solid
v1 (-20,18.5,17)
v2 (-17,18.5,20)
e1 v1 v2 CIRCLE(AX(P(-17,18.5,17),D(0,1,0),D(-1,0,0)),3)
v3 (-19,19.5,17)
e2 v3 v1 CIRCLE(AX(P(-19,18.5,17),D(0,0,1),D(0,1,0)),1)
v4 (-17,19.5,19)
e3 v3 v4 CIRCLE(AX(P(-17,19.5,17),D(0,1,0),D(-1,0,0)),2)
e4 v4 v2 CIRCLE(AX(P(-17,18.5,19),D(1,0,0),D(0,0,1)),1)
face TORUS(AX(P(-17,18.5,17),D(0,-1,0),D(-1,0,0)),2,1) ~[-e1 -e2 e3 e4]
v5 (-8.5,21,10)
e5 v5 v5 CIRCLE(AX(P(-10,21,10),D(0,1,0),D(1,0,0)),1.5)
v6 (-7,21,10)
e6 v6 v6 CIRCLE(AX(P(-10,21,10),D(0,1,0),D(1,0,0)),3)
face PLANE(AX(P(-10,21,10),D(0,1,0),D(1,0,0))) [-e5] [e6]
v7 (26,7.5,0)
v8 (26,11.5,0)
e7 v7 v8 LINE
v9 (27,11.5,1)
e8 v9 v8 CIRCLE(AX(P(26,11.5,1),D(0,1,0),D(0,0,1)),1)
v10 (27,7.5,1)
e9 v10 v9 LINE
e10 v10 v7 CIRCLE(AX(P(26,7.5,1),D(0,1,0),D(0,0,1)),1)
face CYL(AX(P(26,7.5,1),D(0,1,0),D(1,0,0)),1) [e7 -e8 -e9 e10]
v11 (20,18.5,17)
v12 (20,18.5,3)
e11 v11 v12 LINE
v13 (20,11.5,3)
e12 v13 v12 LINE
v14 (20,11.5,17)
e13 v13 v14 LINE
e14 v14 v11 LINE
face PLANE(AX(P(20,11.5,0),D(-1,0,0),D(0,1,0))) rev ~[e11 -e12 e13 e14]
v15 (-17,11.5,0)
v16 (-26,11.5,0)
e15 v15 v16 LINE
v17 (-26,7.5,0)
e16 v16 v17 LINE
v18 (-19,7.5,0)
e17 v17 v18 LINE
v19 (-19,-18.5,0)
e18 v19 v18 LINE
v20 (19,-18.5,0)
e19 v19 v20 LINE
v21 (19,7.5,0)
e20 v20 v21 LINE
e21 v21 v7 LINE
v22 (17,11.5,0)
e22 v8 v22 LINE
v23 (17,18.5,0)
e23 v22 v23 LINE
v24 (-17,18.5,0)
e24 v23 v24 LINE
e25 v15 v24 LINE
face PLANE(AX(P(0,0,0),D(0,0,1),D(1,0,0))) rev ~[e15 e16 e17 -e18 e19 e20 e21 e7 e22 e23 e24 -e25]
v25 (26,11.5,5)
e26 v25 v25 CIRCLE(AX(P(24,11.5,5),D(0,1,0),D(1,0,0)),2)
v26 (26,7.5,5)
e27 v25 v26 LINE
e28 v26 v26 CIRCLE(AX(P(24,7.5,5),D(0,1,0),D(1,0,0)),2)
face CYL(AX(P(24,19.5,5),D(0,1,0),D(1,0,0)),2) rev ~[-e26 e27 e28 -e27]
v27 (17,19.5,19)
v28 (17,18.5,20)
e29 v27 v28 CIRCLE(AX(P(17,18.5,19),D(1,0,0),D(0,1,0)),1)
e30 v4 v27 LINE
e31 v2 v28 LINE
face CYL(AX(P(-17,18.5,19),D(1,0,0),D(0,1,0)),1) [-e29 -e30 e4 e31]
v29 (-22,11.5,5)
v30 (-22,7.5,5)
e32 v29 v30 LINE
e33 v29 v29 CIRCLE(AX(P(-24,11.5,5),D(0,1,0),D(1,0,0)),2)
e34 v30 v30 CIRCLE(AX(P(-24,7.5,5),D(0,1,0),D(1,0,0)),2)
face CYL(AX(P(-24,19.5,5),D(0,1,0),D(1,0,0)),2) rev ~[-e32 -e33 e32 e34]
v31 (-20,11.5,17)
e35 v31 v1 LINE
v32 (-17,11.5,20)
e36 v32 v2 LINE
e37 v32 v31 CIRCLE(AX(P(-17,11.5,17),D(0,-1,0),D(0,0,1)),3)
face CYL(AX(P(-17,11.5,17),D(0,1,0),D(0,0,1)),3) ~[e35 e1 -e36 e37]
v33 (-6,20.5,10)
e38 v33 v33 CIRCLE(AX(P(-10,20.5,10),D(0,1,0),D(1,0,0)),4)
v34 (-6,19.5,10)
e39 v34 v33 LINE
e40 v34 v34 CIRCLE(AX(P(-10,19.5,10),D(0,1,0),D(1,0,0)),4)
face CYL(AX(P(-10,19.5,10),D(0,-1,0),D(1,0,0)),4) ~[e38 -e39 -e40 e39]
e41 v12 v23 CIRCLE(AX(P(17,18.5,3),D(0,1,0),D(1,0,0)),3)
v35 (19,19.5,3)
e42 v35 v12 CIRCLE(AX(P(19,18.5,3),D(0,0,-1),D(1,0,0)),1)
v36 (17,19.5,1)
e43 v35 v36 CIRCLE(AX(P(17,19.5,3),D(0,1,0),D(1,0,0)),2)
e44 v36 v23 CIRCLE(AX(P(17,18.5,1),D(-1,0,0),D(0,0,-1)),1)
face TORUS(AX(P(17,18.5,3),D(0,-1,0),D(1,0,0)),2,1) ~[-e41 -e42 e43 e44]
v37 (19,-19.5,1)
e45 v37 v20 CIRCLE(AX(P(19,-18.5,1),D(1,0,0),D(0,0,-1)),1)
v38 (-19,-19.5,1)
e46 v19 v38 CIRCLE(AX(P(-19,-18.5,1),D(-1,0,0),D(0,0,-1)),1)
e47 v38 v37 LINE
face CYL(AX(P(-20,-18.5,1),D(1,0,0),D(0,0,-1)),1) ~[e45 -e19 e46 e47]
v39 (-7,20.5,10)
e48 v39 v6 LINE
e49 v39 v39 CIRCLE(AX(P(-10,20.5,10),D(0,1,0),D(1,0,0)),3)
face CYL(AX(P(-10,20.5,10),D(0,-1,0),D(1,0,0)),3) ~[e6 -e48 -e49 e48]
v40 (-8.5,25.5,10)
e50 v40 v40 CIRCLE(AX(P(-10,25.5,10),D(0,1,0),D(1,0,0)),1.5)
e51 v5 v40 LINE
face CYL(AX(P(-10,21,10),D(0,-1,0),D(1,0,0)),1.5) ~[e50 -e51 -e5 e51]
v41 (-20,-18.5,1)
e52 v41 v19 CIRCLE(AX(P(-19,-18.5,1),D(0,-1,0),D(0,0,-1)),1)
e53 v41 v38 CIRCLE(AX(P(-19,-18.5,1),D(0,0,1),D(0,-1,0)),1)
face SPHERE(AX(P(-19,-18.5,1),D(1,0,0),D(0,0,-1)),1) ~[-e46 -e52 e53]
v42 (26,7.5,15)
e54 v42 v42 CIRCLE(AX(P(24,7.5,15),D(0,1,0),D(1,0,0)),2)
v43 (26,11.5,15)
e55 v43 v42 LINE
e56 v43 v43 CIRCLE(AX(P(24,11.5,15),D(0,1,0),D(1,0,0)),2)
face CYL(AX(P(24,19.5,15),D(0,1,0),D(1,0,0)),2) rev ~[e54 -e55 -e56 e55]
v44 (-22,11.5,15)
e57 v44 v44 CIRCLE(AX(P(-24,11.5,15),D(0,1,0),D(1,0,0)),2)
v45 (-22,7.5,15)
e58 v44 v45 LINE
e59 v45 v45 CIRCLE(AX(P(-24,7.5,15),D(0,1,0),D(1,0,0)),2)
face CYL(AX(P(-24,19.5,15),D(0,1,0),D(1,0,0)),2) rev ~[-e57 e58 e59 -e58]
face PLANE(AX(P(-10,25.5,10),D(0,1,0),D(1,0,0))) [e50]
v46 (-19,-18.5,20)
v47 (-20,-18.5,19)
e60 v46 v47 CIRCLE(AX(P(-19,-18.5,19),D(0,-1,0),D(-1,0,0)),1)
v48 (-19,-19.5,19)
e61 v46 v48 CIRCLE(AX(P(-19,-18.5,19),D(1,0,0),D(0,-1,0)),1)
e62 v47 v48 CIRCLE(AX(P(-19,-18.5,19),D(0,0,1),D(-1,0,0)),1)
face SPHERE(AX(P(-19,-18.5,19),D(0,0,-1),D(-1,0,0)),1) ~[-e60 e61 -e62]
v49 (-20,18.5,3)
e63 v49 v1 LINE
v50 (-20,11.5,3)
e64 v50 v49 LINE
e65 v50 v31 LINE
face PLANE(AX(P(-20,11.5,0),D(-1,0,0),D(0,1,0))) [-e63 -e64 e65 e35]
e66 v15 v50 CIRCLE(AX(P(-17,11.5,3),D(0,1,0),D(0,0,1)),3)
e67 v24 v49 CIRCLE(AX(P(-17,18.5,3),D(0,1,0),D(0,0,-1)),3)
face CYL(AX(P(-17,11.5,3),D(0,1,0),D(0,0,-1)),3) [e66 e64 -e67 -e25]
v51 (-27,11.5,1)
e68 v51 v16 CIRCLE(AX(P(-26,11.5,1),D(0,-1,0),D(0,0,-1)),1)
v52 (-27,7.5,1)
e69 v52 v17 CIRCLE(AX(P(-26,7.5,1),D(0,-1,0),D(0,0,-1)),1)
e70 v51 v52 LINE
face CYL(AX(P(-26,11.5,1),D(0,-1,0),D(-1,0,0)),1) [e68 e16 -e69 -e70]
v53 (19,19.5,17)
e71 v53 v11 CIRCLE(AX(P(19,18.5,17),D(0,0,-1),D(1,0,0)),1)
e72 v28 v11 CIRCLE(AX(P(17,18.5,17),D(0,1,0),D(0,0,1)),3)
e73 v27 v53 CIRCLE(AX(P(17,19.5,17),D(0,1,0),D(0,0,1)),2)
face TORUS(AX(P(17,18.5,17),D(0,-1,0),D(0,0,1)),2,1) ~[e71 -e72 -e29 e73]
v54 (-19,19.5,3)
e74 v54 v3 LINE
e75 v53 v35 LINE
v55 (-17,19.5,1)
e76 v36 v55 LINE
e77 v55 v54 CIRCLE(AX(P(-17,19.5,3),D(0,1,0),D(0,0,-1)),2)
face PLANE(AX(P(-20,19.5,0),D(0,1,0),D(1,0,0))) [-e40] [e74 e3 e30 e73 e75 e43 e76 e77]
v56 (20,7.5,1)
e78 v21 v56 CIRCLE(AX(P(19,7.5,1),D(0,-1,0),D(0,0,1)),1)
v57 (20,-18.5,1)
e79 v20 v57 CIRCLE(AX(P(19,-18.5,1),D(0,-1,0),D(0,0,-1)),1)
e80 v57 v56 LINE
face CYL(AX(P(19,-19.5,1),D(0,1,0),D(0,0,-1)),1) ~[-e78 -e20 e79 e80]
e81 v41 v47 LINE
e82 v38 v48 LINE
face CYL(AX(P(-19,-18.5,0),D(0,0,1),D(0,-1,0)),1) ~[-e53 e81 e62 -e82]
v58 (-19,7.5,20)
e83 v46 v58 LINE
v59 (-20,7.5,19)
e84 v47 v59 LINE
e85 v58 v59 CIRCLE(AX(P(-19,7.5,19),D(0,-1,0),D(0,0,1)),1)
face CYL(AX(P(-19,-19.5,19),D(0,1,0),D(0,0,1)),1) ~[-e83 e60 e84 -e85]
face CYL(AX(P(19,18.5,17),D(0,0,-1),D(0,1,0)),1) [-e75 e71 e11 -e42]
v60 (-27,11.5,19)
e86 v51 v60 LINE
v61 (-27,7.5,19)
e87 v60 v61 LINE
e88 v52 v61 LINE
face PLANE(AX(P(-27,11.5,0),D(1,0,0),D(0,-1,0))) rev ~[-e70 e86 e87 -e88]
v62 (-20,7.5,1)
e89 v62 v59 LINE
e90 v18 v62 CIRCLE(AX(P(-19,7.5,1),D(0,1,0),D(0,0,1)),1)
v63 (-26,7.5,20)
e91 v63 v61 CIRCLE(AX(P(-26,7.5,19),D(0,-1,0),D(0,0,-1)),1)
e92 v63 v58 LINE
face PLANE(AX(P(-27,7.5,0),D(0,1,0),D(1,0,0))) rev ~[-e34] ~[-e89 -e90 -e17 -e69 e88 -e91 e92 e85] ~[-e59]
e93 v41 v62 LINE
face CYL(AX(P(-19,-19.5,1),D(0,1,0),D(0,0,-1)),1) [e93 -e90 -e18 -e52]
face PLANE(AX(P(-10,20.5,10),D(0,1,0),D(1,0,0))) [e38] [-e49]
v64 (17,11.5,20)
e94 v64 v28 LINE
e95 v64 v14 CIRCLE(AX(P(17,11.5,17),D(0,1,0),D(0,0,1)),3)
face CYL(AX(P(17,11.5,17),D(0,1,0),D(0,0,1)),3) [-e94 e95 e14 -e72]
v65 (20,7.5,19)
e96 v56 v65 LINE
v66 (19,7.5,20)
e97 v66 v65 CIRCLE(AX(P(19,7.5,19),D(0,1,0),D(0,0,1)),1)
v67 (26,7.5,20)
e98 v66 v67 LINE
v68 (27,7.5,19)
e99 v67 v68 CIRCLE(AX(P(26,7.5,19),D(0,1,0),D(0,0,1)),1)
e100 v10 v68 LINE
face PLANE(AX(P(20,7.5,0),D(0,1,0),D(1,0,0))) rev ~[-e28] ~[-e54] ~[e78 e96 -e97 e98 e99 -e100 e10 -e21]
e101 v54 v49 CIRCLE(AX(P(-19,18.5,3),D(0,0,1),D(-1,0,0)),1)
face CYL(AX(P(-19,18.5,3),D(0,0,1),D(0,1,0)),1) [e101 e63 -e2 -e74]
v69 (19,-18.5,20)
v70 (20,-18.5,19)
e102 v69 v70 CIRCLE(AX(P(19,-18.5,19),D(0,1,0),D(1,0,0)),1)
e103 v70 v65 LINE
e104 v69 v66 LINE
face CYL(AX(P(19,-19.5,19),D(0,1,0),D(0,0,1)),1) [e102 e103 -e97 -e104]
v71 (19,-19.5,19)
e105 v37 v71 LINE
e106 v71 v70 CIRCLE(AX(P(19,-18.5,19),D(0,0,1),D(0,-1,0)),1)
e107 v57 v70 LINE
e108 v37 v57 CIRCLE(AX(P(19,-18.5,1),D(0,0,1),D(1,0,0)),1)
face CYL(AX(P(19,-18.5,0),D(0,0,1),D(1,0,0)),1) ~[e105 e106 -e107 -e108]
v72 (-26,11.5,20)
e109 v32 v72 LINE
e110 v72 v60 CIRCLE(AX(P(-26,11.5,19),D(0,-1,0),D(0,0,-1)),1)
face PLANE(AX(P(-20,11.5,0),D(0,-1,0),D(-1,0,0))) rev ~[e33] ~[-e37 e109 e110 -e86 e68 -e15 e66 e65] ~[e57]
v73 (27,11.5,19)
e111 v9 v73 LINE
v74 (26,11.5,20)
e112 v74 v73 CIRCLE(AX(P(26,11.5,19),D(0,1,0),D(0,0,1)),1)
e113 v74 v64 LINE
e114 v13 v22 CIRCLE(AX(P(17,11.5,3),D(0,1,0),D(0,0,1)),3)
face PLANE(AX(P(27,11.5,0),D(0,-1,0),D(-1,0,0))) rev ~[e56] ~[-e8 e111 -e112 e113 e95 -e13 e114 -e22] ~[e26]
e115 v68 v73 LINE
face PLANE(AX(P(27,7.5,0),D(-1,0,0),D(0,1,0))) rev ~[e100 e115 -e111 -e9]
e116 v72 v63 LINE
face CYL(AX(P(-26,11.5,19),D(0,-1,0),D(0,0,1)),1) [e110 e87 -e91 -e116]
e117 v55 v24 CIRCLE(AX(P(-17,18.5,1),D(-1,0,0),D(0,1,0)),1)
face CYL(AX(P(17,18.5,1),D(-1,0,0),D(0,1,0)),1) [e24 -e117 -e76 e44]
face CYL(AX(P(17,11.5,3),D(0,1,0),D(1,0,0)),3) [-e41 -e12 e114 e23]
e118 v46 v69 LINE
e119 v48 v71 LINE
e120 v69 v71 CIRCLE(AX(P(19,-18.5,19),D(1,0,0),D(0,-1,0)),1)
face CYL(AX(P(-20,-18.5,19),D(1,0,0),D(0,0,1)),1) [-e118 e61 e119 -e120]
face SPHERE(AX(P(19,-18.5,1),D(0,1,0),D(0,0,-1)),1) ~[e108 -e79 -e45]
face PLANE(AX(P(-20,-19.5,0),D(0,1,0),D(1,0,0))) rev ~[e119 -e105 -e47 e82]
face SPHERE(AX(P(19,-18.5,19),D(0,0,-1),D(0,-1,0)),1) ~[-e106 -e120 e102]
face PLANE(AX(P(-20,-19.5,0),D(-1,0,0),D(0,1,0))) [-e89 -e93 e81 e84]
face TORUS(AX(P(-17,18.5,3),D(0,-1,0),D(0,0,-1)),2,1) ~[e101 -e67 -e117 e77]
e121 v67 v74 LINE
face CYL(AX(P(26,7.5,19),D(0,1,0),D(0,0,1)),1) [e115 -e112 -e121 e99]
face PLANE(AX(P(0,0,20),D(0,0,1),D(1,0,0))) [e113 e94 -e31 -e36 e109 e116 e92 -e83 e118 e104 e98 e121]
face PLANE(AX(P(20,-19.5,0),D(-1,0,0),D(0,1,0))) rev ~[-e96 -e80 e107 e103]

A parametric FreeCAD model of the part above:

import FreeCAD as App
import Part
import Sketcher

V = App.Vector


def edges_at(feature, points):
    """Names of the edges that pass closest to the given points."""
    edges = feature.Shape.Edges
    near = lambda p: min(range(len(edges)), key=lambda i: edges[i].distToShape(Part.Vertex(*p))[0])
    return sorted({f"Edge{near(p) + 1}" for p in points})

doc = App.newDocument("Part")
body = doc.addObject("PartDesign::Body", "Body")

# Sketch on XY plane
sketch1 = body.newObject("Sketcher::SketchObject", "Sketch")
sketch1.AttachmentSupport = (doc.getObject("XY_Plane"), [""])
sketch1.MapMode = "FlatFace"
sketch1.addGeometry(Part.LineSegment(V(-20, 7.5, 0), V(-20, -19.5, 0)), False)
sketch1.addGeometry(Part.LineSegment(V(-20, -19.5, 0), V(20, -19.5, 0)), False)
sketch1.addGeometry(Part.LineSegment(V(20, -19.5, 0), V(20, 7.5, 0)), False)
sketch1.addGeometry(Part.LineSegment(V(20, 7.5, 0), V(27, 7.5, 0)), False)
sketch1.addGeometry(Part.LineSegment(V(27, 7.5, 0), V(27, 11.5, 0)), False)
sketch1.addGeometry(Part.LineSegment(V(27, 11.5, 0), V(20, 11.5, 0)), False)
sketch1.addGeometry(Part.LineSegment(V(20, 11.5, 0), V(20, 19.5, 0)), False)
sketch1.addGeometry(Part.LineSegment(V(20, 19.5, 0), V(-20, 19.5, 0)), False)
sketch1.addGeometry(Part.LineSegment(V(-20, 19.5, 0), V(-20, 11.5, 0)), False)
sketch1.addGeometry(Part.LineSegment(V(-20, 11.5, 0), V(-27, 11.5, 0)), False)
sketch1.addGeometry(Part.LineSegment(V(-27, 11.5, 0), V(-27, 7.5, 0)), False)
sketch1.addGeometry(Part.LineSegment(V(-27, 7.5, 0), V(-20, 7.5, 0)), False)
sketch1.addConstraint(Sketcher.Constraint("Coincident", 0, 2, 1, 1))
sketch1.addConstraint(Sketcher.Constraint("Coincident", 1, 2, 2, 1))
sketch1.addConstraint(Sketcher.Constraint("Coincident", 2, 2, 3, 1))
sketch1.addConstraint(Sketcher.Constraint("Coincident", 3, 2, 4, 1))
sketch1.addConstraint(Sketcher.Constraint("Coincident", 4, 2, 5, 1))
sketch1.addConstraint(Sketcher.Constraint("Coincident", 5, 2, 6, 1))
sketch1.addConstraint(Sketcher.Constraint("Coincident", 6, 2, 7, 1))
sketch1.addConstraint(Sketcher.Constraint("Coincident", 7, 2, 8, 1))
sketch1.addConstraint(Sketcher.Constraint("Coincident", 8, 2, 9, 1))
sketch1.addConstraint(Sketcher.Constraint("Coincident", 9, 2, 10, 1))
sketch1.addConstraint(Sketcher.Constraint("Coincident", 10, 2, 11, 1))
sketch1.addConstraint(Sketcher.Constraint("Coincident", 11, 2, 0, 1))
sketch1.addConstraint(Sketcher.Constraint("Vertical", 0))
sketch1.addConstraint(Sketcher.Constraint("Horizontal", 1))
sketch1.addConstraint(Sketcher.Constraint("Vertical", 2))
sketch1.addConstraint(Sketcher.Constraint("Horizontal", 3))
sketch1.addConstraint(Sketcher.Constraint("Vertical", 4))
sketch1.addConstraint(Sketcher.Constraint("Horizontal", 5))
sketch1.addConstraint(Sketcher.Constraint("Vertical", 6))
sketch1.addConstraint(Sketcher.Constraint("Horizontal", 7))
sketch1.addConstraint(Sketcher.Constraint("Vertical", 8))
sketch1.addConstraint(Sketcher.Constraint("Horizontal", 9))
sketch1.addConstraint(Sketcher.Constraint("Vertical", 10))
sketch1.addConstraint(Sketcher.Constraint("Horizontal", 11))
sketch1.addConstraint(Sketcher.Constraint("Symmetric", 0, 2, 6, 2, -1, 1))
sketch1.addConstraint(Sketcher.Constraint("Symmetric", 5, 2, 8, 2, -2))
sketch1.addConstraint(Sketcher.Constraint("Symmetric", 3, 2, 10, 2, -2))
sketch1.addConstraint(Sketcher.Constraint("Vertical", 2, 2, 5, 2))
sketch1.addConstraint(Sketcher.Constraint("DistanceX", 1, 1, 1, 2, 40.0))
sketch1.addConstraint(Sketcher.Constraint("DistanceX", 3, 1, 3, 2, 7.0))
sketch1.addConstraint(Sketcher.Constraint("DistanceY", 0, 2, 0, 1, 27.0))
sketch1.addConstraint(Sketcher.Constraint("DistanceY", 4, 1, 4, 2, 4.0))
sketch1.addConstraint(Sketcher.Constraint("DistanceY", 6, 1, 6, 2, 8.0))
pad1 = body.newObject("PartDesign::Pad", "Pad")
pad1.Profile = sketch1
pad1.Length = 20

# Sketch on XZ plane
sketch2 = body.newObject("Sketcher::SketchObject", "Sketch001")
sketch2.AttachmentSupport = (doc.getObject("XZ_Plane"), [""])
sketch2.MapMode = "FlatFace"
sketch2.AttachmentOffset = App.Placement(V(0, 0, -19.5), App.Rotation())
sketch2.addGeometry(Part.Circle(V(-24, 15, 0), V(0, 0, 1), 2), False)
sketch2.addGeometry(Part.Circle(V(24, 15, 0), V(0, 0, 1), 2), False)
sketch2.addGeometry(Part.Circle(V(-24, 5, 0), V(0, 0, 1), 2), False)
sketch2.addGeometry(Part.Circle(V(24, 5, 0), V(0, 0, 1), 2), False)
sketch2.addConstraint(Sketcher.Constraint("Equal", 0, 1))
sketch2.addConstraint(Sketcher.Constraint("Equal", 1, 2))
sketch2.addConstraint(Sketcher.Constraint("Equal", 2, 3))
sketch2.addConstraint(Sketcher.Constraint("Symmetric", 0, 3, 1, 3, -2))
sketch2.addConstraint(Sketcher.Constraint("Symmetric", 2, 3, 3, 3, -2))
sketch2.addConstraint(Sketcher.Constraint("Vertical", 0, 3, 2, 3))
sketch2.addConstraint(Sketcher.Constraint("Diameter", 0, 4.0))
sketch2.addConstraint(Sketcher.Constraint("DistanceX", 0, 3, -1, 1, 24.0))
sketch2.addConstraint(Sketcher.Constraint("DistanceY", -1, 1, 0, 3, 15.0))
sketch2.addConstraint(Sketcher.Constraint("DistanceY", -1, 1, 2, 3, 5.0))
pocket1 = body.newObject("PartDesign::Pocket", "Pocket")
pocket1.Profile = sketch2
pocket1.Length = 20
pocket1.Reversed = True

# Sketch on XZ plane
sketch3 = body.newObject("Sketcher::SketchObject", "Sketch002")
sketch3.AttachmentSupport = (doc.getObject("XZ_Plane"), [""])
sketch3.MapMode = "FlatFace"
sketch3.AttachmentOffset = App.Placement(V(0, 0, -19.5), App.Rotation())
sketch3.addGeometry(Part.Circle(V(-10, 10, 0), V(0, 0, 1), 4), False)
sketch3.addConstraint(Sketcher.Constraint("Diameter", 0, 8.0))
sketch3.addConstraint(Sketcher.Constraint("DistanceX", 0, 3, -1, 1, 10.0))
sketch3.addConstraint(Sketcher.Constraint("DistanceY", -1, 1, 0, 3, 10.0))
pad2 = body.newObject("PartDesign::Pad", "Pad001")
pad2.Profile = sketch3
pad2.Length = 1
pad2.Reversed = True

# Sketch on XZ plane
sketch4 = body.newObject("Sketcher::SketchObject", "Sketch003")
sketch4.AttachmentSupport = (doc.getObject("XZ_Plane"), [""])
sketch4.MapMode = "FlatFace"
sketch4.AttachmentOffset = App.Placement(V(0, 0, -20.5), App.Rotation())
sketch4.addGeometry(Part.Circle(V(-10, 10, 0), V(0, 0, 1), 3), False)
sketch4.addConstraint(Sketcher.Constraint("Diameter", 0, 6.0))
sketch4.addConstraint(Sketcher.Constraint("DistanceX", 0, 3, -1, 1, 10.0))
sketch4.addConstraint(Sketcher.Constraint("DistanceY", -1, 1, 0, 3, 10.0))
pad3 = body.newObject("PartDesign::Pad", "Pad002")
pad3.Profile = sketch4
pad3.Length = 0.5
pad3.Reversed = True

# Sketch on XZ plane
sketch5 = body.newObject("Sketcher::SketchObject", "Sketch004")
sketch5.AttachmentSupport = (doc.getObject("XZ_Plane"), [""])
sketch5.MapMode = "FlatFace"
sketch5.AttachmentOffset = App.Placement(V(0, 0, -21), App.Rotation())
sketch5.addGeometry(Part.Circle(V(-10, 10, 0), V(0, 0, 1), 1.5), False)
sketch5.addConstraint(Sketcher.Constraint("Diameter", 0, 3.0))
sketch5.addConstraint(Sketcher.Constraint("DistanceX", 0, 3, -1, 1, 10.0))
sketch5.addConstraint(Sketcher.Constraint("DistanceY", -1, 1, 0, 3, 10.0))
pad4 = body.newObject("PartDesign::Pad", "Pad003")
pad4.Profile = sketch5
pad4.Length = 4.5
pad4.Reversed = True
doc.recompute()

fillet = body.newObject("PartDesign::Fillet", "Fillet")
fillet.Base = (pad4, edges_at(pad4, [(-20, 15.5, 20)]))
fillet.Radius = 3
doc.recompute()

fillet2 = body.newObject("PartDesign::Fillet", "Fillet001")
fillet2.Base = (fillet, edges_at(fillet, [(-20, 15.5, 0), (20, 15.5, 0), (20, 15.5, 20)]))
fillet2.Radius = 3
doc.recompute()

fillet3 = body.newObject("PartDesign::Fillet", "Fillet002")
fillet3.Base = (fillet2, edges_at(fillet2, [
    (20, -6, 0),
    (0, -19.5, 0),
    (-20, -6, 0),
    (20, -19.5, 10),
    (-20, -19.5, 10),
    (-20, -6, 20),
    (0, -19.5, 20),
    (20, -6, 20),
]))
fillet3.Radius = 1
doc.recompute()

fillet4 = body.newObject("PartDesign::Fillet", "Fillet003")
fillet4.Base = (fillet3, edges_at(fillet3, [(-27, 9.5, 0), (-27, 9.5, 20)]))
fillet4.Radius = 1
doc.recompute()

fillet5 = body.newObject("PartDesign::Fillet", "Fillet004")
fillet5.Base = (fillet4, edges_at(fillet4, [
    (19.121, 19.5, 0.879),
    (19.121, 19.5, 19.121),
    (0, 19.5, 20),
    (-20, 19.5, 10),
    (-19.121, 19.5, 19.121),
    (20, 19.5, 10),
    (0, 19.5, 0),
    (-19.121, 19.5, 0.879),
]))
fillet5.Radius = 1
doc.recompute()

fillet6 = body.newObject("PartDesign::Fillet", "Fillet005")
fillet6.Base = (fillet5, edges_at(fillet5, [(27, 9.5, 0), (27, 9.5, 20)]))
fillet6.Radius = 1

doc.recompute()
